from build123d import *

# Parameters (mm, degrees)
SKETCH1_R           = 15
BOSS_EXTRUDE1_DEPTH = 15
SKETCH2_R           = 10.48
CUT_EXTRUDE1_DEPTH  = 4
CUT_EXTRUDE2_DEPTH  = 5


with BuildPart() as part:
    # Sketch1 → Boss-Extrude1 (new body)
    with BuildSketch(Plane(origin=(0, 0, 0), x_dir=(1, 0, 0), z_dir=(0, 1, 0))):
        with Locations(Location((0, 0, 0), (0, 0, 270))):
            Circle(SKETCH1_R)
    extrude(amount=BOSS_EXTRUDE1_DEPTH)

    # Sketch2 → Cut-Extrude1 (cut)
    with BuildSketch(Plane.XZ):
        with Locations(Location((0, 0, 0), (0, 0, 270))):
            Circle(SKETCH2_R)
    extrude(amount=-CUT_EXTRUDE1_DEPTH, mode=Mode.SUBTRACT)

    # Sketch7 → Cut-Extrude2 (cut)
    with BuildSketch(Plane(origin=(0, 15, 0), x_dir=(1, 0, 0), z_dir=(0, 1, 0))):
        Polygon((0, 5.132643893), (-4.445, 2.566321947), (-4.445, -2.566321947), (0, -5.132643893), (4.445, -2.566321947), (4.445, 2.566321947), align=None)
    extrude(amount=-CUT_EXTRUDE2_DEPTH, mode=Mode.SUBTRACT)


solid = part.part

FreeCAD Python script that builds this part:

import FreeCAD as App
import Part
import Sketcher
Q = App.Units.Quantity

doc = App.newDocument("Part")
body = doc.addObject("PartDesign::Body", "Body")

# Sketch on XZ plane
sketch1 = doc.addObject("Sketcher::SketchObject", "Sketch")
body.addObject(sketch1)
sketch1.AttachmentSupport = (doc.XZ_Plane, [""])
sketch1.MapMode = "FlatFace"
sketch1.addGeometry(Part.Circle(App.Vector(0, 0, 0), App.Vector(0, 0, 1), 15), False)
sketch1.addConstraint([
    Sketcher.Constraint("Coincident", 0, 3, -1, 1),
    Sketcher.Constraint("Diameter", 0, Q("30 mm")),
])
pad1 = doc.addObject("PartDesign::Pad", "Pad")
body.addObject(pad1)
pad1.Profile = sketch1
pad1.Length = 15
pad1.Reversed = True

# Sketch on XZ plane
sketch2 = doc.addObject("Sketcher::SketchObject", "Sketch001")
body.addObject(sketch2)
sketch2.AttachmentSupport = (doc.XZ_Plane, [""])
sketch2.MapMode = "FlatFace"
sketch2.addGeometry(Part.Circle(App.Vector(0, 0, 0), App.Vector(0, 0, 1), 10.48), False)
sketch2.addConstraint([
    Sketcher.Constraint("Coincident", 0, 3, -1, 1),
    Sketcher.Constraint("Diameter", 0, Q("20.96 mm")),
])
pocket1 = doc.addObject("PartDesign::Pocket", "Pocket")
body.addObject(pocket1)
pocket1.Profile = sketch2
pocket1.Length = 4

# Sketch on XZ plane
sketch3 = doc.addObject("Sketcher::SketchObject", "Sketch002")
body.addObject(sketch3)
sketch3.AttachmentSupport = (doc.XZ_Plane, [""])
sketch3.MapMode = "FlatFace"
sketch3.AttachmentOffset = App.Placement(App.Vector(0, 0, -15), App.Rotation())
sketch3.addGeometry([
    Part.LineSegment(App.Vector(0, -5.132644, 0), App.Vector(-4.445, -2.566322, 0)),  # 0
    Part.LineSegment(App.Vector(-4.445, -2.566322, 0), App.Vector(-4.445, 2.566322, 0)),  # 1
    Part.LineSegment(App.Vector(-4.445, 2.566322, 0), App.Vector(0, 5.132644, 0)),  # 2
    Part.LineSegment(App.Vector(0, 5.132644, 0), App.Vector(4.445, 2.566322, 0)),  # 3
    Part.LineSegment(App.Vector(4.445, 2.566322, 0), App.Vector(4.445, -2.566322, 0)),  # 4
    Part.LineSegment(App.Vector(4.445, -2.566322, 0), App.Vector(0, -5.132644, 0)),  # 5
], False)
sketch3.addConstraint([
    Sketcher.Constraint("Coincident", 0, 2, 1, 1),
    Sketcher.Constraint("Coincident", 1, 2, 2, 1),
    Sketcher.Constraint("Coincident", 2, 2, 3, 1),
    Sketcher.Constraint("Coincident", 3, 2, 4, 1),
    Sketcher.Constraint("Coincident", 4, 2, 5, 1),
    Sketcher.Constraint("Coincident", 5, 2, 0, 1),
    Sketcher.Constraint("Vertical", 1),
    Sketcher.Constraint("Vertical", 4),
    Sketcher.Constraint("Symmetric", 0, 2, 3, 2, -1, 1),
    Sketcher.Constraint("Symmetric", 2, 2, 5, 2, -1, 1),
    Sketcher.Constraint("PointOnObject", 2, 2, -2),
    Sketcher.Constraint("Parallel", 2, 5),
    Sketcher.Constraint("Horizontal", 1, 2, 3, 2),
    Sketcher.Constraint("Angle", 0, Q("150 deg")),
    Sketcher.Constraint("DistanceX", 1, 2, 3, 2, Q("8.89 mm")),
    Sketcher.Constraint("DistanceY", 1, 1, 1, 2, Q("5.132644 mm")),
])
pocket2 = doc.addObject("PartDesign::Pocket", "Pocket001")
body.addObject(pocket2)
pocket2.Profile = sketch3
pocket2.Length = 5
pocket2.Reversed = True

doc.recompute()
